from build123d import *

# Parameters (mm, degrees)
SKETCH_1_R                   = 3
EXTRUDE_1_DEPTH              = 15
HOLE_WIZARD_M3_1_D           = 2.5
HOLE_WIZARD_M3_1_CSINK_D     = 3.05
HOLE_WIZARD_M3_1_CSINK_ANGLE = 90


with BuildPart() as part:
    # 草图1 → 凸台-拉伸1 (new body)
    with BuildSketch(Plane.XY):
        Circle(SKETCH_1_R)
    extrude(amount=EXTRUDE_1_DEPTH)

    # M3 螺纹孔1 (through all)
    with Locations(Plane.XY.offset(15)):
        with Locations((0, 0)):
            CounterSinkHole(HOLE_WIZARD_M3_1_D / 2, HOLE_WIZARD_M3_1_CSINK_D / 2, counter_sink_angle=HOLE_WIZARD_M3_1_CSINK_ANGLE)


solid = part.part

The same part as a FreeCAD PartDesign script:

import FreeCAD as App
import Part
import Sketcher
from FreeCAD import Vector

doc = App.newDocument("Part")
body = doc.addObject("PartDesign::Body", "Body")

sketch1 = body.newObject("Sketcher::SketchObject", "Sketch")
sketch1.AttachmentSupport = (doc.getObject("XY_Plane"), [""])
sketch1.MapMode = "FlatFace"
sketch1.addGeometry(Part.Circle(Vector(0, 0, 0), Vector(0, 0, 1), 3), False)
sketch1.addConstraint([
    Sketcher.Constraint("Coincident", 0, 3, -1, 1),
    Sketcher.Constraint("Diameter", 0, 6.0),
])
pad1 = body.newObject("PartDesign::Pad", "Pad")
pad1.Profile = sketch1
pad1.Length = 15

sketch2 = body.newObject("Sketcher::SketchObject", "Sketch001")
sketch2.AttachmentSupport = (doc.getObject("XY_Plane"), [""])
sketch2.MapMode = "FlatFace"
sketch2.AttachmentOffset = App.Placement(Vector(0, 0, 15), App.Rotation())
sketch2.addGeometry(Part.Circle(Vector(0, 0, 0), Vector(0, 0, 1), 1.2), False)
sketch2.addConstraint([
    Sketcher.Constraint("Coincident", 0, 3, -1, 1),
    Sketcher.Constraint("Diameter", 0, 2.5),
])
doc.recompute()
hole = body.newObject("PartDesign::Hole", "Hole")
hole.Profile = sketch2
hole.ThreadType = "None"
hole.Diameter = 2.5
hole.DepthType = "ThroughAll"
hole.HoleCutType = "Countersink"
hole.HoleCutDiameter = 3.05
hole.HoleCutCountersinkAngle = 90

doc.recompute()
